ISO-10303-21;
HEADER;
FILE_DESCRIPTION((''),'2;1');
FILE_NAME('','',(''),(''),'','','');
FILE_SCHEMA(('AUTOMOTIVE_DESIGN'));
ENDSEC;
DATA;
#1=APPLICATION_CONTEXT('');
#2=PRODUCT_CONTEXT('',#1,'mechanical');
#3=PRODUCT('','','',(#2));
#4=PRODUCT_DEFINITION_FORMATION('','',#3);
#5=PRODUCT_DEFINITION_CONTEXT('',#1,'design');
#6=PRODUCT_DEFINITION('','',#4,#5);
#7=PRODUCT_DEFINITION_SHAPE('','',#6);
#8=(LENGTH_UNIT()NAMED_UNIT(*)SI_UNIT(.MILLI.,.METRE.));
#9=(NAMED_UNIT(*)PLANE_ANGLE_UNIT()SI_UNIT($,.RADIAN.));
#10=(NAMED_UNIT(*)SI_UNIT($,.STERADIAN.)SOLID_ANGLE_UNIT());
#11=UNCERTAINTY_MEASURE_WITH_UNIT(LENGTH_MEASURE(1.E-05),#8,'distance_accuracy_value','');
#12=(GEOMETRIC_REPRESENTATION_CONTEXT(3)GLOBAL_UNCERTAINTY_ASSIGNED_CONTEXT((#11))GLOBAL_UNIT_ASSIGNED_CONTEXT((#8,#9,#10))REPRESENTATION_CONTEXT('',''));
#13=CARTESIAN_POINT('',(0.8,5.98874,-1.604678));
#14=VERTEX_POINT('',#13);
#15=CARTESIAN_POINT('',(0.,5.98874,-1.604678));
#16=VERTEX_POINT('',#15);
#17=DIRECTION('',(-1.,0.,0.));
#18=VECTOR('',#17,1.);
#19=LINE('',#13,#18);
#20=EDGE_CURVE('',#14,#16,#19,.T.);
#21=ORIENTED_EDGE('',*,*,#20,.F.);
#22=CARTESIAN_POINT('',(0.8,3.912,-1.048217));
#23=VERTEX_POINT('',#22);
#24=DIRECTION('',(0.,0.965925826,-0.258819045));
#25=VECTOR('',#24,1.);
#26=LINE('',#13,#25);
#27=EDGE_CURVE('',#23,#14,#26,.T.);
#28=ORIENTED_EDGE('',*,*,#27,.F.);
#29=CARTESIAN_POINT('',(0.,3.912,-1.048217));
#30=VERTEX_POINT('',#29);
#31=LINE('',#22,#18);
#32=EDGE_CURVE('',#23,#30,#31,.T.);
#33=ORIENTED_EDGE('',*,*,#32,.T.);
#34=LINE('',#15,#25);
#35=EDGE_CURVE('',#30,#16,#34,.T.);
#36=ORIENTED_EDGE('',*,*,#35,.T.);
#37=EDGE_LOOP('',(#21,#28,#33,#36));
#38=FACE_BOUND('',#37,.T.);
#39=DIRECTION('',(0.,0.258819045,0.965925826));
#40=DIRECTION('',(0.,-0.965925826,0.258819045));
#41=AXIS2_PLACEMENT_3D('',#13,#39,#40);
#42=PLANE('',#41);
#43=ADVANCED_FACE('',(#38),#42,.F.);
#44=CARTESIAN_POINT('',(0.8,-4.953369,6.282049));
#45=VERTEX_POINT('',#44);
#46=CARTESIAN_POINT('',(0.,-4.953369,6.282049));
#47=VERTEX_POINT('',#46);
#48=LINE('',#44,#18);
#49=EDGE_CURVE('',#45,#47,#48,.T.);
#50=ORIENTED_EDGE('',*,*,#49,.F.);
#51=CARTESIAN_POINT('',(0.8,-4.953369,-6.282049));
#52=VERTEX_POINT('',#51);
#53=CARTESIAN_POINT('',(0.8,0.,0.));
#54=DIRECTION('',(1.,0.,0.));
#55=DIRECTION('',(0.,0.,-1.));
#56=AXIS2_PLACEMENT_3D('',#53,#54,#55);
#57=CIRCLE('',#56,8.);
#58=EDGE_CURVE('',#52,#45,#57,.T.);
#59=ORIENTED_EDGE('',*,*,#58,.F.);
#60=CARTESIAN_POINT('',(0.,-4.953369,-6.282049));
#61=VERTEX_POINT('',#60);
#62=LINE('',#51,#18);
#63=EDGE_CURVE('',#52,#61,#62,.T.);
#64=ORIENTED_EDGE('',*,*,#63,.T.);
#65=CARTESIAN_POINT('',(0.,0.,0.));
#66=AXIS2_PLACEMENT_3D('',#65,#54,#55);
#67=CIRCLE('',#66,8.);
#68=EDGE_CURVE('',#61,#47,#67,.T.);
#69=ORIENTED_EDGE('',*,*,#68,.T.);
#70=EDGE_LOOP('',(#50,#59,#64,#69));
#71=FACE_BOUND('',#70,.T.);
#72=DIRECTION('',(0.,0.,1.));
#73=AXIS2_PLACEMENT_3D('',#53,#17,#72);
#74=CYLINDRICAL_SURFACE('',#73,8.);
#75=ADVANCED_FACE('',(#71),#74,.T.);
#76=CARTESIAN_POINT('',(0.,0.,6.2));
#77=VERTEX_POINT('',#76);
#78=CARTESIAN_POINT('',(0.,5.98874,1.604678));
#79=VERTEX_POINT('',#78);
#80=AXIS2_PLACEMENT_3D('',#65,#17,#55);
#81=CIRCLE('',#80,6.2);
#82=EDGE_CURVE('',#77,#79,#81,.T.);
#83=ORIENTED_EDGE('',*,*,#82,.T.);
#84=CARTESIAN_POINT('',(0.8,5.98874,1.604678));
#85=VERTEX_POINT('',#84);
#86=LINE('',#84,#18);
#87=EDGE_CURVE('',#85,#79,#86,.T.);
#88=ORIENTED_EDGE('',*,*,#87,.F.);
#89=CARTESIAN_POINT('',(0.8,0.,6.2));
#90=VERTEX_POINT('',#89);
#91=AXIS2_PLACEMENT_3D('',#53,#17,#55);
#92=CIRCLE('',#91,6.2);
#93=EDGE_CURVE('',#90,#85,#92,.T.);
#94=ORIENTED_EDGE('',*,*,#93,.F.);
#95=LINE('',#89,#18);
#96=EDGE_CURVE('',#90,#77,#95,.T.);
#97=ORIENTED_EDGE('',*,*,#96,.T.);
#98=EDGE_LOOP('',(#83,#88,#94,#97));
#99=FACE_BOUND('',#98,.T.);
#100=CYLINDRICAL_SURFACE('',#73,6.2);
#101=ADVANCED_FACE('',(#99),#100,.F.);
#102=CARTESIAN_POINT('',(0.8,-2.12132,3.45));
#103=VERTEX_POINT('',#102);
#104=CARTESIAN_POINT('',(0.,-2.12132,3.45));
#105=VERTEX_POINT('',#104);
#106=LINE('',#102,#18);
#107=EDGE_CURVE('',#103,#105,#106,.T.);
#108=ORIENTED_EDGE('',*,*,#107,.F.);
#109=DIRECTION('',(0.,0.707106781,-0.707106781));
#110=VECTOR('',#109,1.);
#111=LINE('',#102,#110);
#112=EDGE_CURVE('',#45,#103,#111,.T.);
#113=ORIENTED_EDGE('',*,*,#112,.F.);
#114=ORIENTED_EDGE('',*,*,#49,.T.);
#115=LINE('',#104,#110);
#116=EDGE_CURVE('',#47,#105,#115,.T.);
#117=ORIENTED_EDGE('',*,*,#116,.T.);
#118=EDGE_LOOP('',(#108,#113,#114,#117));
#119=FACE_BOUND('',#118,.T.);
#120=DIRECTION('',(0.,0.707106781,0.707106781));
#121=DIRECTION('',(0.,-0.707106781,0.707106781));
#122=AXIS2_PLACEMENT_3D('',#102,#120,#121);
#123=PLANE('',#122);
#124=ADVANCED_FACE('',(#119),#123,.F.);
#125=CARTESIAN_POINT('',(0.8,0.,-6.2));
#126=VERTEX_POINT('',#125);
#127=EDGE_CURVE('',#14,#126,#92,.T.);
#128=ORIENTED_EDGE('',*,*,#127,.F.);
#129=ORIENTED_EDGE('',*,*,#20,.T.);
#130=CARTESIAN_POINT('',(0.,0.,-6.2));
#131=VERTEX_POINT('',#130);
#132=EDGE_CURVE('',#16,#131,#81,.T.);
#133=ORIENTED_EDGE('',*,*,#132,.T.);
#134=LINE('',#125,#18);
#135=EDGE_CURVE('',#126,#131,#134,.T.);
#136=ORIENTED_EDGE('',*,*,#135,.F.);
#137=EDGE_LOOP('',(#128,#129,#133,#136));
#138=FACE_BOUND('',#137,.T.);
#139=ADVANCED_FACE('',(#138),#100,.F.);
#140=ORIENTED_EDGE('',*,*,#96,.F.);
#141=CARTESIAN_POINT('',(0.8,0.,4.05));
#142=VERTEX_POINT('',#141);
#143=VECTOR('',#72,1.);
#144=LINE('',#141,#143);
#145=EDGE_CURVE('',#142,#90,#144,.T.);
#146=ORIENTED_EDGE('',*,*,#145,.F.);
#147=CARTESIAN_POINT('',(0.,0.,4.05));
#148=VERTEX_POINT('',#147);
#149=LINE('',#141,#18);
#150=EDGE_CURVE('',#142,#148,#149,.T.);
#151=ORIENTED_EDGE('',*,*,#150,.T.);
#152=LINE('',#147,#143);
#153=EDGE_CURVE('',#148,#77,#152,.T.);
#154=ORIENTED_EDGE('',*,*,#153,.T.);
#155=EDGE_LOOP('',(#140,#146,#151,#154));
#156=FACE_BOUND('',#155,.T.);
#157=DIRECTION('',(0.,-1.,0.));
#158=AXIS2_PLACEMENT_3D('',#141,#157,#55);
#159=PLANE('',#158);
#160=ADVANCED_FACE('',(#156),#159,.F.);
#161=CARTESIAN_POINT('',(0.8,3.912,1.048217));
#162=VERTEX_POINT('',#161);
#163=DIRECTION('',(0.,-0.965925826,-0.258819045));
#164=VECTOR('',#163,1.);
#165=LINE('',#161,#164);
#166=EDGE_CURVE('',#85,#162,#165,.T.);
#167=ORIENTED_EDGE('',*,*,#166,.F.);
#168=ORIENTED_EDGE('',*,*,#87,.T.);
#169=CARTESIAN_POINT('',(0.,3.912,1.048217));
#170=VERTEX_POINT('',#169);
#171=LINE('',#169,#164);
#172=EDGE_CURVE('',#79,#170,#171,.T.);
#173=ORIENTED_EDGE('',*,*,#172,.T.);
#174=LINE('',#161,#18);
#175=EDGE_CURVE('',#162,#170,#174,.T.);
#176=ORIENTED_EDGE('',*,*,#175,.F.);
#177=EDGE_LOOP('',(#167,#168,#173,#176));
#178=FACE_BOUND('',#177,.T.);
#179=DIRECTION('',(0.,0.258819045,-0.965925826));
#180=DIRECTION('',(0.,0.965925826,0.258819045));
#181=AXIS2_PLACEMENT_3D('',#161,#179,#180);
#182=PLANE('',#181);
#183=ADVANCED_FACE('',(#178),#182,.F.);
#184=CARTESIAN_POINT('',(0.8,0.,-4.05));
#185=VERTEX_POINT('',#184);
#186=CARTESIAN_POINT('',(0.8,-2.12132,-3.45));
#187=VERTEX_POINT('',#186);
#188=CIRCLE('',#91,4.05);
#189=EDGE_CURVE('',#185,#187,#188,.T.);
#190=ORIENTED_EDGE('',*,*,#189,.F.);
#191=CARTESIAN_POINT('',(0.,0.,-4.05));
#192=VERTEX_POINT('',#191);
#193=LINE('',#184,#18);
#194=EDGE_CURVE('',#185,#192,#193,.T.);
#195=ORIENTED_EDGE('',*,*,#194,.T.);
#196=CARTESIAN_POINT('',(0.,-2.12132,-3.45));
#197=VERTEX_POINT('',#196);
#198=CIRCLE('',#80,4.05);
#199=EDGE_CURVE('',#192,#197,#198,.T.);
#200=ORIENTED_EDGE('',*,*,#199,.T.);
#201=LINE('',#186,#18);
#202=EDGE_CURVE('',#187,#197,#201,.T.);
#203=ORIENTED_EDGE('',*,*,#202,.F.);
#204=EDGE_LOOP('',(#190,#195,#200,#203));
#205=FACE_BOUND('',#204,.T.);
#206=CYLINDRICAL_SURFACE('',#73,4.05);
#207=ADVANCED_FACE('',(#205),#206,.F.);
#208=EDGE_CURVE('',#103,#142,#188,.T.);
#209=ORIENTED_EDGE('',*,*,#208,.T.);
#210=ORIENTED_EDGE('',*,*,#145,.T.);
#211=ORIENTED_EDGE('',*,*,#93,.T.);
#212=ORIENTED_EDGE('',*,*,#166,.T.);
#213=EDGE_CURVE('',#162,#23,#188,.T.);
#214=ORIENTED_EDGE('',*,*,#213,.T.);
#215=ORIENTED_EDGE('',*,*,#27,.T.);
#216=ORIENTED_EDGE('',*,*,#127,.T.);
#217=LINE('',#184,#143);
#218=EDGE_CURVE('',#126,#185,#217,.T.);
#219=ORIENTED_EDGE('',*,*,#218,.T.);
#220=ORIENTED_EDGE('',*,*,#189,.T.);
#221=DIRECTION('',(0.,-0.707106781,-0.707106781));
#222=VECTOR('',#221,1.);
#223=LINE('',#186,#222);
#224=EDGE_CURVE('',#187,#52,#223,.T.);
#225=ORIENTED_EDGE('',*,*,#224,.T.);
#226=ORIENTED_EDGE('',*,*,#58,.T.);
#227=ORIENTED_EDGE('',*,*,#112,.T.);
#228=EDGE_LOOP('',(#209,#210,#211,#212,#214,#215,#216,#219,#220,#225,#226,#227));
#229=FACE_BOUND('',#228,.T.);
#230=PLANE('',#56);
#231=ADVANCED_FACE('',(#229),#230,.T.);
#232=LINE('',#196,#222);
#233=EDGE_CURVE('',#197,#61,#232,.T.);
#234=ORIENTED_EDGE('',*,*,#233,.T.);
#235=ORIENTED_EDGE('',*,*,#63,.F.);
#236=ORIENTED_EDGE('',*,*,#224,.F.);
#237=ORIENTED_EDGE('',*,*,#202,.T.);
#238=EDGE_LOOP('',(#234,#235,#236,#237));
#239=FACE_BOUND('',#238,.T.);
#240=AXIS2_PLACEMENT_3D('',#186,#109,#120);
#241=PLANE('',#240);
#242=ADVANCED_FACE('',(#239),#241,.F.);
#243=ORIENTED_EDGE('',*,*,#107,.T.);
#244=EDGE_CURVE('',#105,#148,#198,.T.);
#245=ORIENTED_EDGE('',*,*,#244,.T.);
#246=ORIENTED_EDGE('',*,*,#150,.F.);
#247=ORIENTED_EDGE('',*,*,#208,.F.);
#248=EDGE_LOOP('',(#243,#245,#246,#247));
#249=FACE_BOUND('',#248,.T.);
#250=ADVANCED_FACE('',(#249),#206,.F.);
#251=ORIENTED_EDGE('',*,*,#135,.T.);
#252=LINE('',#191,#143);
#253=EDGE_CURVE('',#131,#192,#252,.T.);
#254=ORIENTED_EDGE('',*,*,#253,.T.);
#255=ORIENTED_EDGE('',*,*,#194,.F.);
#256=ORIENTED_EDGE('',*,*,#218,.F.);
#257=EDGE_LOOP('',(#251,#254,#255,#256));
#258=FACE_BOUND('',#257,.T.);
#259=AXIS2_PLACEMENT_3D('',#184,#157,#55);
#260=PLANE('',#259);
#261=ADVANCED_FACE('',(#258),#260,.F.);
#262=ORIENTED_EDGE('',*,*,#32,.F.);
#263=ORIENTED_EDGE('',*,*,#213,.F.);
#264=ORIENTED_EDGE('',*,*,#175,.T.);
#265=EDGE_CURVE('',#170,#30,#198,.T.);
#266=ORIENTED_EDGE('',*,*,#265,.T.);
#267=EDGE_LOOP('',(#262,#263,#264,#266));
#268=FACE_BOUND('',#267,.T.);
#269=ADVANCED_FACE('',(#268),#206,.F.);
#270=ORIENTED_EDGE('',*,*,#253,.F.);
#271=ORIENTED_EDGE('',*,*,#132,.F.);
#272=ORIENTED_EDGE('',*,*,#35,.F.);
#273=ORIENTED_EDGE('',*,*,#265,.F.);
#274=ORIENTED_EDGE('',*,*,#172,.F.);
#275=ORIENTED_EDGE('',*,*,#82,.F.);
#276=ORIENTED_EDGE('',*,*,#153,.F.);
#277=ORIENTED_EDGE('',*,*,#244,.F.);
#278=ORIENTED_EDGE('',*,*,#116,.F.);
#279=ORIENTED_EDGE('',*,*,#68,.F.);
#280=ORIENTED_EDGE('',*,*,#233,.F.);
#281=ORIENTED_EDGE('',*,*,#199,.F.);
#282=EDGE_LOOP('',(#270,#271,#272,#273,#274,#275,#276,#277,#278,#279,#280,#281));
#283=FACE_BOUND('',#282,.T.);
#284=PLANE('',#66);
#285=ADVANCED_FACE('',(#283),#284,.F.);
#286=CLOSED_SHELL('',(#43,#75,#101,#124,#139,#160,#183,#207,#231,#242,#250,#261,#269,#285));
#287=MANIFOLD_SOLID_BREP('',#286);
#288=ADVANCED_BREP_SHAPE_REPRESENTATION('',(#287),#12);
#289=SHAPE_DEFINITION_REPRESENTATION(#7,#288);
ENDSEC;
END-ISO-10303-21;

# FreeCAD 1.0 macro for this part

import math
import FreeCAD as App
import Part
import Sketcher
Q = App.Units.Quantity

doc = App.newDocument("Part")
body = doc.addObject("PartDesign::Body", "Body")

# Sketch on YZ plane
sketch1 = doc.addObject("Sketcher::SketchObject", "Sketch")
body.addObject(sketch1)
sketch1.AttachmentSupport = (doc.YZ_Plane, [""])
sketch1.MapMode = "FlatFace"
sketch1.addGeometry(Part.LineSegment(App.Vector(0, 4.05, 0), App.Vector(0, 6.2, 0)), False)
sketch1.addGeometry(Part.ArcOfCircle(Part.Circle(App.Vector(0, 0, 0), App.Vector(0, 0, 1), 6.2), math.radians(15), math.radians(90)), False)
sketch1.addGeometry(Part.LineSegment(App.Vector(5.98874, 1.604678, 0), App.Vector(3.912, 1.048217, 0)), False)
sketch1.addGeometry(Part.ArcOfCircle(Part.Circle(App.Vector(0, 0, 0), App.Vector(0, 0, 1), 4.05), math.radians(-15), math.radians(15)), False)
sketch1.addGeometry(Part.LineSegment(App.Vector(3.912, -1.048217, 0), App.Vector(5.98874, -1.604678, 0)), False)
sketch1.addGeometry(Part.ArcOfCircle(Part.Circle(App.Vector(0, 0, 0), App.Vector(0, 0, 1), 6.2), math.radians(-90), math.radians(-15)), False)
sketch1.addGeometry(Part.LineSegment(App.Vector(0, -6.2, 0), App.Vector(0, -4.05, 0)), False)
sketch1.addGeometry(Part.ArcOfCircle(Part.Circle(App.Vector(0, 0, 0), App.Vector(0, 0, 1), 4.05), math.radians(-121.586338), math.radians(-90)), False)
sketch1.addGeometry(Part.LineSegment(App.Vector(-2.12132, -3.45, 0), App.Vector(-4.953369, -6.282049, 0)), False)
sketch1.addGeometry(Part.ArcOfCircle(Part.Circle(App.Vector(0, 0, 0), App.Vector(0, 0, 1), 8), math.radians(-128.255631), math.radians(128.255631)), False)
sketch1.addGeometry(Part.LineSegment(App.Vector(-4.953369, 6.282049, 0), App.Vector(-2.12132, 3.45, 0)), False)
sketch1.addGeometry(Part.ArcOfCircle(Part.Circle(App.Vector(0, 0, 0), App.Vector(0, 0, 1), 4.05), math.radians(90), math.radians(121.586338)), False)
sketch1.addConstraint(Sketcher.Constraint("Coincident", 0, 2, 1, 2))
sketch1.addConstraint(Sketcher.Constraint("Coincident", 1, 1, 2, 1))
sketch1.addConstraint(Sketcher.Constraint("Coincident", 2, 2, 3, 2))
sketch1.addConstraint(Sketcher.Constraint("Coincident", 3, 1, 4, 1))
sketch1.addConstraint(Sketcher.Constraint("Coincident", 4, 2, 5, 2))
sketch1.addConstraint(Sketcher.Constraint("Coincident", 5, 1, 6, 1))
sketch1.addConstraint(Sketcher.Constraint("Coincident", 6, 2, 7, 2))
sketch1.addConstraint(Sketcher.Constraint("Coincident", 7, 1, 8, 1))
sketch1.addConstraint(Sketcher.Constraint("Coincident", 8, 2, 9, 1))
sketch1.addConstraint(Sketcher.Constraint("Coincident", 9, 2, 10, 1))
sketch1.addConstraint(Sketcher.Constraint("Coincident", 10, 2, 11, 2))
sketch1.addConstraint(Sketcher.Constraint("Coincident", 11, 1, 0, 1))
sketch1.addConstraint(Sketcher.Constraint("Vertical", 0))
sketch1.addConstraint(Sketcher.Constraint("Vertical", 6))
sketch1.addConstraint(Sketcher.Constraint("Coincident", 1, 3, -1, 1))
sketch1.addConstraint(Sketcher.Constraint("Coincident", 3, 3, -1, 1))
sketch1.addConstraint(Sketcher.Constraint("Coincident", 5, 3, -1, 1))
sketch1.addConstraint(Sketcher.Constraint("Coincident", 7, 3, -1, 1))
sketch1.addConstraint(Sketcher.Constraint("Coincident", 9, 3, -1, 1))
sketch1.addConstraint(Sketcher.Constraint("Coincident", 11, 3, -1, 1))
sketch1.addConstraint(Sketcher.Constraint("Equal", 1, 5))
sketch1.addConstraint(Sketcher.Constraint("Equal", 3, 7))
sketch1.addConstraint(Sketcher.Constraint("Equal", 7, 11))
sketch1.addConstraint(Sketcher.Constraint("PointOnObject", 0, 2, -2))
sketch1.addConstraint(Sketcher.Constraint("PointOnObject", 5, 1, -2))
sketch1.addConstraint(Sketcher.Constraint("Perpendicular", 8, 10))
sketch1.addConstraint(Sketcher.Constraint("Vertical", 2, 2, 3, 1))
sketch1.addConstraint(Sketcher.Constraint("Vertical", 1, 1, 4, 2))
sketch1.addConstraint(Sketcher.Constraint("Vertical", 8, 2, 9, 2))
sketch1.addConstraint(Sketcher.Constraint("Vertical", 7, 1, 10, 2))
sketch1.addConstraint(Sketcher.Constraint("Radius", 9, Q("8 mm")))
sketch1.addConstraint(Sketcher.Constraint("Radius", 1, Q("6.2 mm")))
sketch1.addConstraint(Sketcher.Constraint("Angle", 2, Q("-165 deg")))
sketch1.addConstraint(Sketcher.Constraint("Radius", 3, Q("4.05 mm")))
sketch1.addConstraint(Sketcher.Constraint("DistanceY", 6, 2, 7, 1, Q("0.6 mm")))
sketch1.addConstraint(Sketcher.Constraint("DistanceX", -1, 1, 2, 2, Q("3.912 mm")))
pad1 = doc.addObject("PartDesign::Pad", "Pad")
body.addObject(pad1)
pad1.Profile = sketch1
pad1.Length = 0.8

doc.recompute()
